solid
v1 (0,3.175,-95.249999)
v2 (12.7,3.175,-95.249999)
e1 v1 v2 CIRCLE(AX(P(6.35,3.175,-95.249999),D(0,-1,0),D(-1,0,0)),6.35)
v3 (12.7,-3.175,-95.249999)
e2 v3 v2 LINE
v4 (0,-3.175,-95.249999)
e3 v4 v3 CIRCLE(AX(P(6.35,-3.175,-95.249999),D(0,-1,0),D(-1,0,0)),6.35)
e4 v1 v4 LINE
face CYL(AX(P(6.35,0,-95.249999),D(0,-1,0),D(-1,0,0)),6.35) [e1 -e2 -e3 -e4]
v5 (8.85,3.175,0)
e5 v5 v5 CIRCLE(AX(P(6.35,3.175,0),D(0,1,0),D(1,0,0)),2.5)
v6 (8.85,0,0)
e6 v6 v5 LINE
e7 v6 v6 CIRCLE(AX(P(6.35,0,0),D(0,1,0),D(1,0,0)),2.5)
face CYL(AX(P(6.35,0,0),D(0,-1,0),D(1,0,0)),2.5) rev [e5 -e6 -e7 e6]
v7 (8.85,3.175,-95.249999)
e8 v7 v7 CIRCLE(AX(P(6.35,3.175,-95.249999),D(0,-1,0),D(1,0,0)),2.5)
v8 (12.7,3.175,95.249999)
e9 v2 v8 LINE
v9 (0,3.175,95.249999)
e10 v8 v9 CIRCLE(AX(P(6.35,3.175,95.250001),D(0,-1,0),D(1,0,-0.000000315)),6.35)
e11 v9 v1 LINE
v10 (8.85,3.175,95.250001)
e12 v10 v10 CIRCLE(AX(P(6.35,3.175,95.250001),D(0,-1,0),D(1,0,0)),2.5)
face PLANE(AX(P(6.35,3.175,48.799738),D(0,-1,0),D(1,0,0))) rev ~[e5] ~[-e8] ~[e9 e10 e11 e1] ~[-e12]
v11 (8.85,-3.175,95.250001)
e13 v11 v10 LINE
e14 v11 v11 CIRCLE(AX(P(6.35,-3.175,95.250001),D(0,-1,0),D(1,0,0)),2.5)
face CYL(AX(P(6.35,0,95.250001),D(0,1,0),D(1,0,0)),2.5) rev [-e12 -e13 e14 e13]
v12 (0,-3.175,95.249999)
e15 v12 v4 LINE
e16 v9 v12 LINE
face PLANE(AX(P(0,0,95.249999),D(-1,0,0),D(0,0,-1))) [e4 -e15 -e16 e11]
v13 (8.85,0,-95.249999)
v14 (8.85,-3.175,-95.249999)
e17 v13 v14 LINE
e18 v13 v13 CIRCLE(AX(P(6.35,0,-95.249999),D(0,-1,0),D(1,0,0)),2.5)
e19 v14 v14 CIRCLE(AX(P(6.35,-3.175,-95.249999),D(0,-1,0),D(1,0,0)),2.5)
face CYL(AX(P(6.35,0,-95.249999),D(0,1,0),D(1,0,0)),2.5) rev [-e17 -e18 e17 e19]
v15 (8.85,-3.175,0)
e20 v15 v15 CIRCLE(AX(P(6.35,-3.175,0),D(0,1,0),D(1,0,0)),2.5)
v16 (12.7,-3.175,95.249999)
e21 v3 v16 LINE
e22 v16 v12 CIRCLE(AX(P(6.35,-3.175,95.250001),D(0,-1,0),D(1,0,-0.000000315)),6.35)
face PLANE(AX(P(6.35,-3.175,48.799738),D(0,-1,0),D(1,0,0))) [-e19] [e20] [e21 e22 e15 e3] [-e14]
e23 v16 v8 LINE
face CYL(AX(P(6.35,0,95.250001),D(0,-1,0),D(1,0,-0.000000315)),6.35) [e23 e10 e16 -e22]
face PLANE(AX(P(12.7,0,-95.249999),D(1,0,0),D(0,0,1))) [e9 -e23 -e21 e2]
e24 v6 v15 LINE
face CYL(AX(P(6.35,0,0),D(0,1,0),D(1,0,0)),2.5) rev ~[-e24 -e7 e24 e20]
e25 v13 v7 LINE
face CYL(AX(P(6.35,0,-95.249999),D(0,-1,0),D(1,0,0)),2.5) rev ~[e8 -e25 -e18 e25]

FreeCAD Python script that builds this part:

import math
import FreeCAD as App
import Part
import Sketcher
from FreeCAD import Vector
Q = App.Units.Quantity

doc = App.newDocument("Part")
body = doc.addObject("PartDesign::Body", "Body")

# Sketch on XZ plane
sketch1 = doc.addObject("Sketcher::SketchObject", "Sketch")
body.addObject(sketch1)
sketch1.AttachmentSupport = (doc.XZ_Plane, [""])
sketch1.MapMode = "FlatFace"
sketch1.addGeometry(Part.ArcOfCircle(Part.Circle(Vector(6.3, 95.3, 0), Vector(0, 0, 1), 6.3), math.radians(0), math.radians(180)), False)
sketch1.addGeometry(Part.LineSegment(Vector(0, 95.2, 0), Vector(0, -95.2, 0)), False)
sketch1.addGeometry(Part.ArcOfCircle(Part.Circle(Vector(6.3, -95.2, 0), Vector(0, 0, 1), 6.3), math.radians(180), math.radians(360)), False)
sketch1.addGeometry(Part.LineSegment(Vector(12.7, -95.2, 0), Vector(12.7, 95.2, 0)), False)
sketch1.addGeometry(Part.Circle(Vector(6.3, -95.2, 0), Vector(0, 0, 1), 2.5), False)
sketch1.addGeometry(Part.Circle(Vector(6.3, 0, 0), Vector(0, 0, 1), 2.5), False)
sketch1.addGeometry(Part.Circle(Vector(6.3, 95.3, 0), Vector(0, 0, 1), 2.5), False)
sketch1.addConstraint(Sketcher.Constraint("Tangent", 0, 2, 1, 1))
sketch1.addConstraint(Sketcher.Constraint("Tangent", 1, 2, 2, 1))
sketch1.addConstraint(Sketcher.Constraint("Tangent", 2, 2, 3, 1))
sketch1.addConstraint(Sketcher.Constraint("Tangent", 3, 2, 0, 1))
sketch1.addConstraint(Sketcher.Constraint("Vertical", 1))
sketch1.addConstraint(Sketcher.Constraint("Vertical", 3))
sketch1.addConstraint(Sketcher.Constraint("Coincident", 4, 3, 2, 3))
sketch1.addConstraint(Sketcher.Constraint("Coincident", 6, 3, 0, 3))
sketch1.addConstraint(Sketcher.Constraint("Equal", 4, 5))
sketch1.addConstraint(Sketcher.Constraint("Equal", 5, 6))
sketch1.addConstraint(Sketcher.Constraint("Symmetric", 0, 2, 1, 2, -1, 1))
sketch1.addConstraint(Sketcher.Constraint("PointOnObject", 5, 3, -1))
sketch1.addConstraint(Sketcher.Constraint("Vertical", 4, 3, 5, 3))
sketch1.addConstraint(Sketcher.Constraint("Radius", 0, Q("0.25 in")))
sketch1.addConstraint(Sketcher.Constraint("DistanceY", 1, 2, 1, 1, Q("7.4999999 in")))
sketch1.addConstraint(Sketcher.Constraint("Diameter", 4, Q("5 mm")))
pad1 = doc.addObject("PartDesign::Pad", "Pad")
body.addObject(pad1)
pad1.Profile = sketch1
pad1.Length = Q("0.25 in")
pad1.Midplane = True

doc.recompute()
